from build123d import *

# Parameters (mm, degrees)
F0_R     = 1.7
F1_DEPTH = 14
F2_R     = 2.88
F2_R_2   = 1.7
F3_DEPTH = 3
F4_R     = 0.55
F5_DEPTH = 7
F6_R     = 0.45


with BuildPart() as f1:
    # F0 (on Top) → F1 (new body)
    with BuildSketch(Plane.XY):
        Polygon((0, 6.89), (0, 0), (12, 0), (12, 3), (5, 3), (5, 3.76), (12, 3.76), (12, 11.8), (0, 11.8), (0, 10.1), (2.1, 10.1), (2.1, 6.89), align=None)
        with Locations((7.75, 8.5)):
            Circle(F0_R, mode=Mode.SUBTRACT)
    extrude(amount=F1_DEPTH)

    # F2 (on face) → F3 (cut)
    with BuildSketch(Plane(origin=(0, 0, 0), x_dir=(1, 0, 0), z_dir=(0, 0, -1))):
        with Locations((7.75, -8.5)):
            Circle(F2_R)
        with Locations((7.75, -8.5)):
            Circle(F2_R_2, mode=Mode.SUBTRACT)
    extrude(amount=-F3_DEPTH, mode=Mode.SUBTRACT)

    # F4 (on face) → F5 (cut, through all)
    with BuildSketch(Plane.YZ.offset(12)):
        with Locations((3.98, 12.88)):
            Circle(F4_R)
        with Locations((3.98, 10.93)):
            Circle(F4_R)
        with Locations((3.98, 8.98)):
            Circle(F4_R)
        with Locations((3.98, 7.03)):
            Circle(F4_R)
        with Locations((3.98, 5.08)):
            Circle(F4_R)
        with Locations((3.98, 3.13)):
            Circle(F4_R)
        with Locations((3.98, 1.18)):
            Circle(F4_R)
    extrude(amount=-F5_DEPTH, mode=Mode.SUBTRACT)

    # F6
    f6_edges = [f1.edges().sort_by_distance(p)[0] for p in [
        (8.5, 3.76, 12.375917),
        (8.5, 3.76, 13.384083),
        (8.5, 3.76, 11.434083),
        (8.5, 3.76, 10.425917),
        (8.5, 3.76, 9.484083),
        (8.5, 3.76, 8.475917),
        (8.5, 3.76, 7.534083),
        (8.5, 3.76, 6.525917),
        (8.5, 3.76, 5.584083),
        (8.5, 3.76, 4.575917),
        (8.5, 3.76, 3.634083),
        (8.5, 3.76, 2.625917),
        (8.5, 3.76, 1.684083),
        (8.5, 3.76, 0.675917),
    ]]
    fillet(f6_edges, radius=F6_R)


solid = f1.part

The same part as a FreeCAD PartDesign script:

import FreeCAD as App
import Part
import Sketcher
from FreeCAD import Vector
Q = App.Units.Quantity


def edges_at(feature, points):
    """Names of the edges that pass closest to the given points."""
    edges = feature.Shape.Edges
    near = lambda p: min(range(len(edges)), key=lambda i: edges[i].distToShape(Part.Vertex(*p))[0])
    return sorted({f"Edge{near(p) + 1}" for p in points})


def add_polygon(sketch, points):
    """Adds a closed chain of lines whose ends are joined by coincident constraints."""
    first, n = sketch.GeometryCount, len(points)
    for a, b in zip(points, points[1:] + points[:1]):
        sketch.addGeometry(Part.LineSegment(App.Vector(*a, 0), App.Vector(*b, 0)), False)
    for i in range(n):
        sketch.addConstraint(Sketcher.Constraint("Coincident", first + i, 2, first + (i + 1) % n, 1))

doc = App.newDocument("Part")
body = doc.addObject("PartDesign::Body", "Body")

sketch1 = body.newObject("Sketcher::SketchObject", "Sketch")
sketch1.AttachmentSupport = (doc.getObject("XY_Plane"), [""])
sketch1.MapMode = "FlatFace"
add_polygon(sketch1, [(0, 6.89), (0, 0), (12, 0), (12, 3), (5, 3), (5, 3.76), (12, 3.76), (12, 11.8), (0, 11.8), (0, 10.1), (2.1, 10.1), (2.1, 6.89)])
sketch1.addGeometry(Part.Circle(Vector(7.75, 8.5, 0), Vector(0, 0, 1), 1.7), False)
sketch1.addConstraint(Sketcher.Constraint("Vertical", 0))
sketch1.addConstraint(Sketcher.Constraint("Horizontal", 1))
sketch1.addConstraint(Sketcher.Constraint("Vertical", 2))
sketch1.addConstraint(Sketcher.Constraint("Horizontal", 3))
sketch1.addConstraint(Sketcher.Constraint("Vertical", 4))
sketch1.addConstraint(Sketcher.Constraint("Horizontal", 5))
sketch1.addConstraint(Sketcher.Constraint("Vertical", 6))
sketch1.addConstraint(Sketcher.Constraint("Horizontal", 7))
sketch1.addConstraint(Sketcher.Constraint("Vertical", 8))
sketch1.addConstraint(Sketcher.Constraint("Horizontal", 9))
sketch1.addConstraint(Sketcher.Constraint("Vertical", 10))
sketch1.addConstraint(Sketcher.Constraint("Horizontal", 11))
sketch1.addConstraint(Sketcher.Constraint("Coincident", 0, 2, -1, 1))
sketch1.addConstraint(Sketcher.Constraint("PointOnObject", 7, 2, -2))
sketch1.addConstraint(Sketcher.Constraint("Vertical", 2, 2, 5, 2))
sketch1.addConstraint(Sketcher.Constraint("Diameter", 12, Q("3.4 mm")))
sketch1.addConstraint(Sketcher.Constraint("DistanceX", 1, 1, 1, 2, Q("12 mm")))
sketch1.addConstraint(Sketcher.Constraint("DistanceX", 3, 2, 3, 1, Q("7 mm")))
sketch1.addConstraint(Sketcher.Constraint("DistanceY", 2, 1, 2, 2, Q("3 mm")))
sketch1.addConstraint(Sketcher.Constraint("DistanceX", 9, 1, 9, 2, Q("2.1 mm")))
sketch1.addConstraint(Sketcher.Constraint("DistanceY", 8, 2, 8, 1, Q("1.7 mm")))
sketch1.addConstraint(Sketcher.Constraint("DistanceY", 0, 2, 0, 1, Q("6.89 mm")))
sketch1.addConstraint(Sketcher.Constraint("DistanceY", 4, 1, 4, 2, Q("0.76 mm")))
sketch1.addConstraint(Sketcher.Constraint("DistanceY", 6, 1, 6, 2, Q("8.04 mm")))
sketch1.addConstraint(Sketcher.Constraint("DistanceY", -1, 1, 12, 3, Q("8.5 mm")))
sketch1.addConstraint(Sketcher.Constraint("DistanceX", -1, 1, 12, 3, Q("7.75 mm")))
pad1 = body.newObject("PartDesign::Pad", "Pad")
pad1.Profile = sketch1
pad1.Length = 14

sketch2 = body.newObject("Sketcher::SketchObject", "Sketch001")
sketch2.AttachmentSupport = (doc.getObject("XY_Plane"), [""])
sketch2.MapMode = "FlatFace"
sketch2.addGeometry(Part.Circle(Vector(7.75, 8.5, 0), Vector(0, 0, 1), 2.88), False)
sketch2.addGeometry(Part.Circle(Vector(7.75, 8.5, 0), Vector(0, 0, 1), 1.7), False)
sketch2.addConstraint(Sketcher.Constraint("Coincident", 1, 3, 0, 3))
sketch2.addConstraint(Sketcher.Constraint("Diameter", 1, Q("3.4 mm")))
sketch2.addConstraint(Sketcher.Constraint("Diameter", 0, Q("5.76 mm")))
sketch2.addConstraint(Sketcher.Constraint("DistanceY", -1, 1, 0, 3, Q("8.5 mm")))
sketch2.addConstraint(Sketcher.Constraint("DistanceX", -1, 1, 0, 3, Q("7.75 mm")))
pocket1 = body.newObject("PartDesign::Pocket", "Pocket")
pocket1.Profile = sketch2
pocket1.Length = 3
pocket1.Reversed = True

sketch3 = body.newObject("Sketcher::SketchObject", "Sketch002")
sketch3.AttachmentSupport = (doc.getObject("YZ_Plane"), [""])
sketch3.MapMode = "FlatFace"
sketch3.AttachmentOffset = App.Placement(Vector(0, 0, 12), App.Rotation())
sketch3.addGeometry(Part.Circle(Vector(3.98, 12.88, 0), Vector(0, 0, 1), 0.55), False)
sketch3.addGeometry(Part.Circle(Vector(3.98, 10.93, 0), Vector(0, 0, 1), 0.55), False)
sketch3.addGeometry(Part.Circle(Vector(3.98, 8.98, 0), Vector(0, 0, 1), 0.55), False)
sketch3.addGeometry(Part.Circle(Vector(3.98, 7.03, 0), Vector(0, 0, 1), 0.55), False)
sketch3.addGeometry(Part.Circle(Vector(3.98, 5.08, 0), Vector(0, 0, 1), 0.55), False)
sketch3.addGeometry(Part.Circle(Vector(3.98, 3.13, 0), Vector(0, 0, 1), 0.55), False)
sketch3.addGeometry(Part.Circle(Vector(3.98, 1.18, 0), Vector(0, 0, 1), 0.55), False)
sketch3.addConstraint(Sketcher.Constraint("Equal", 0, 1))
sketch3.addConstraint(Sketcher.Constraint("Equal", 1, 2))
sketch3.addConstraint(Sketcher.Constraint("Equal", 2, 3))
sketch3.addConstraint(Sketcher.Constraint("Equal", 3, 4))
sketch3.addConstraint(Sketcher.Constraint("Equal", 4, 5))
sketch3.addConstraint(Sketcher.Constraint("Equal", 5, 6))
sketch3.addConstraint(Sketcher.Constraint("Vertical", 0, 3, 1, 3))
sketch3.addConstraint(Sketcher.Constraint("Vertical", 1, 3, 2, 3))
sketch3.addConstraint(Sketcher.Constraint("Vertical", 2, 3, 3, 3))
sketch3.addConstraint(Sketcher.Constraint("Vertical", 3, 3, 4, 3))
sketch3.addConstraint(Sketcher.Constraint("Vertical", 4, 3, 5, 3))
sketch3.addConstraint(Sketcher.Constraint("Vertical", 5, 3, 6, 3))
sketch3.addConstraint(Sketcher.Constraint("Diameter", 0, Q("1.1 mm")))
sketch3.addConstraint(Sketcher.Constraint("DistanceY", 2, 3, 0, 3, Q("3.9 mm")))
sketch3.addConstraint(Sketcher.Constraint("DistanceY", 3, 3, 1, 3, Q("3.9 mm")))
sketch3.addConstraint(Sketcher.Constraint("DistanceY", 4, 3, 2, 3, Q("3.9 mm")))
sketch3.addConstraint(Sketcher.Constraint("DistanceY", 5, 3, 3, 3, Q("3.9 mm")))
sketch3.addConstraint(Sketcher.Constraint("DistanceY", 6, 3, 4, 3, Q("3.9 mm")))
sketch3.addConstraint(Sketcher.Constraint("DistanceX", -1, 1, 0, 3, Q("3.98 mm")))
sketch3.addConstraint(Sketcher.Constraint("DistanceY", -1, 1, 0, 3, Q("12.88 mm")))
sketch3.addConstraint(Sketcher.Constraint("DistanceY", -1, 1, 1, 3, Q("10.93 mm")))
pocket2 = body.newObject("PartDesign::Pocket", "Pocket001")
pocket2.Profile = sketch3
pocket2.Length = 7
doc.recompute()

fillet = body.newObject("PartDesign::Fillet", "Fillet")
fillet.Base = (pocket2, edges_at(pocket2, [
    (8.5, 3.76, 12.376),
    (8.5, 3.76, 13.384),
    (8.5, 3.76, 11.434),
    (8.5, 3.76, 10.426),
    (8.5, 3.76, 9.484),
    (8.5, 3.76, 8.476),
    (8.5, 3.76, 7.534),
    (8.5, 3.76, 6.526),
    (8.5, 3.76, 5.584),
    (8.5, 3.76, 4.576),
    (8.5, 3.76, 3.634),
    (8.5, 3.76, 2.626),
    (8.5, 3.76, 1.684),
    (8.5, 3.76, 0.676),
]))
fillet.Radius = 0.45

doc.recompute()
